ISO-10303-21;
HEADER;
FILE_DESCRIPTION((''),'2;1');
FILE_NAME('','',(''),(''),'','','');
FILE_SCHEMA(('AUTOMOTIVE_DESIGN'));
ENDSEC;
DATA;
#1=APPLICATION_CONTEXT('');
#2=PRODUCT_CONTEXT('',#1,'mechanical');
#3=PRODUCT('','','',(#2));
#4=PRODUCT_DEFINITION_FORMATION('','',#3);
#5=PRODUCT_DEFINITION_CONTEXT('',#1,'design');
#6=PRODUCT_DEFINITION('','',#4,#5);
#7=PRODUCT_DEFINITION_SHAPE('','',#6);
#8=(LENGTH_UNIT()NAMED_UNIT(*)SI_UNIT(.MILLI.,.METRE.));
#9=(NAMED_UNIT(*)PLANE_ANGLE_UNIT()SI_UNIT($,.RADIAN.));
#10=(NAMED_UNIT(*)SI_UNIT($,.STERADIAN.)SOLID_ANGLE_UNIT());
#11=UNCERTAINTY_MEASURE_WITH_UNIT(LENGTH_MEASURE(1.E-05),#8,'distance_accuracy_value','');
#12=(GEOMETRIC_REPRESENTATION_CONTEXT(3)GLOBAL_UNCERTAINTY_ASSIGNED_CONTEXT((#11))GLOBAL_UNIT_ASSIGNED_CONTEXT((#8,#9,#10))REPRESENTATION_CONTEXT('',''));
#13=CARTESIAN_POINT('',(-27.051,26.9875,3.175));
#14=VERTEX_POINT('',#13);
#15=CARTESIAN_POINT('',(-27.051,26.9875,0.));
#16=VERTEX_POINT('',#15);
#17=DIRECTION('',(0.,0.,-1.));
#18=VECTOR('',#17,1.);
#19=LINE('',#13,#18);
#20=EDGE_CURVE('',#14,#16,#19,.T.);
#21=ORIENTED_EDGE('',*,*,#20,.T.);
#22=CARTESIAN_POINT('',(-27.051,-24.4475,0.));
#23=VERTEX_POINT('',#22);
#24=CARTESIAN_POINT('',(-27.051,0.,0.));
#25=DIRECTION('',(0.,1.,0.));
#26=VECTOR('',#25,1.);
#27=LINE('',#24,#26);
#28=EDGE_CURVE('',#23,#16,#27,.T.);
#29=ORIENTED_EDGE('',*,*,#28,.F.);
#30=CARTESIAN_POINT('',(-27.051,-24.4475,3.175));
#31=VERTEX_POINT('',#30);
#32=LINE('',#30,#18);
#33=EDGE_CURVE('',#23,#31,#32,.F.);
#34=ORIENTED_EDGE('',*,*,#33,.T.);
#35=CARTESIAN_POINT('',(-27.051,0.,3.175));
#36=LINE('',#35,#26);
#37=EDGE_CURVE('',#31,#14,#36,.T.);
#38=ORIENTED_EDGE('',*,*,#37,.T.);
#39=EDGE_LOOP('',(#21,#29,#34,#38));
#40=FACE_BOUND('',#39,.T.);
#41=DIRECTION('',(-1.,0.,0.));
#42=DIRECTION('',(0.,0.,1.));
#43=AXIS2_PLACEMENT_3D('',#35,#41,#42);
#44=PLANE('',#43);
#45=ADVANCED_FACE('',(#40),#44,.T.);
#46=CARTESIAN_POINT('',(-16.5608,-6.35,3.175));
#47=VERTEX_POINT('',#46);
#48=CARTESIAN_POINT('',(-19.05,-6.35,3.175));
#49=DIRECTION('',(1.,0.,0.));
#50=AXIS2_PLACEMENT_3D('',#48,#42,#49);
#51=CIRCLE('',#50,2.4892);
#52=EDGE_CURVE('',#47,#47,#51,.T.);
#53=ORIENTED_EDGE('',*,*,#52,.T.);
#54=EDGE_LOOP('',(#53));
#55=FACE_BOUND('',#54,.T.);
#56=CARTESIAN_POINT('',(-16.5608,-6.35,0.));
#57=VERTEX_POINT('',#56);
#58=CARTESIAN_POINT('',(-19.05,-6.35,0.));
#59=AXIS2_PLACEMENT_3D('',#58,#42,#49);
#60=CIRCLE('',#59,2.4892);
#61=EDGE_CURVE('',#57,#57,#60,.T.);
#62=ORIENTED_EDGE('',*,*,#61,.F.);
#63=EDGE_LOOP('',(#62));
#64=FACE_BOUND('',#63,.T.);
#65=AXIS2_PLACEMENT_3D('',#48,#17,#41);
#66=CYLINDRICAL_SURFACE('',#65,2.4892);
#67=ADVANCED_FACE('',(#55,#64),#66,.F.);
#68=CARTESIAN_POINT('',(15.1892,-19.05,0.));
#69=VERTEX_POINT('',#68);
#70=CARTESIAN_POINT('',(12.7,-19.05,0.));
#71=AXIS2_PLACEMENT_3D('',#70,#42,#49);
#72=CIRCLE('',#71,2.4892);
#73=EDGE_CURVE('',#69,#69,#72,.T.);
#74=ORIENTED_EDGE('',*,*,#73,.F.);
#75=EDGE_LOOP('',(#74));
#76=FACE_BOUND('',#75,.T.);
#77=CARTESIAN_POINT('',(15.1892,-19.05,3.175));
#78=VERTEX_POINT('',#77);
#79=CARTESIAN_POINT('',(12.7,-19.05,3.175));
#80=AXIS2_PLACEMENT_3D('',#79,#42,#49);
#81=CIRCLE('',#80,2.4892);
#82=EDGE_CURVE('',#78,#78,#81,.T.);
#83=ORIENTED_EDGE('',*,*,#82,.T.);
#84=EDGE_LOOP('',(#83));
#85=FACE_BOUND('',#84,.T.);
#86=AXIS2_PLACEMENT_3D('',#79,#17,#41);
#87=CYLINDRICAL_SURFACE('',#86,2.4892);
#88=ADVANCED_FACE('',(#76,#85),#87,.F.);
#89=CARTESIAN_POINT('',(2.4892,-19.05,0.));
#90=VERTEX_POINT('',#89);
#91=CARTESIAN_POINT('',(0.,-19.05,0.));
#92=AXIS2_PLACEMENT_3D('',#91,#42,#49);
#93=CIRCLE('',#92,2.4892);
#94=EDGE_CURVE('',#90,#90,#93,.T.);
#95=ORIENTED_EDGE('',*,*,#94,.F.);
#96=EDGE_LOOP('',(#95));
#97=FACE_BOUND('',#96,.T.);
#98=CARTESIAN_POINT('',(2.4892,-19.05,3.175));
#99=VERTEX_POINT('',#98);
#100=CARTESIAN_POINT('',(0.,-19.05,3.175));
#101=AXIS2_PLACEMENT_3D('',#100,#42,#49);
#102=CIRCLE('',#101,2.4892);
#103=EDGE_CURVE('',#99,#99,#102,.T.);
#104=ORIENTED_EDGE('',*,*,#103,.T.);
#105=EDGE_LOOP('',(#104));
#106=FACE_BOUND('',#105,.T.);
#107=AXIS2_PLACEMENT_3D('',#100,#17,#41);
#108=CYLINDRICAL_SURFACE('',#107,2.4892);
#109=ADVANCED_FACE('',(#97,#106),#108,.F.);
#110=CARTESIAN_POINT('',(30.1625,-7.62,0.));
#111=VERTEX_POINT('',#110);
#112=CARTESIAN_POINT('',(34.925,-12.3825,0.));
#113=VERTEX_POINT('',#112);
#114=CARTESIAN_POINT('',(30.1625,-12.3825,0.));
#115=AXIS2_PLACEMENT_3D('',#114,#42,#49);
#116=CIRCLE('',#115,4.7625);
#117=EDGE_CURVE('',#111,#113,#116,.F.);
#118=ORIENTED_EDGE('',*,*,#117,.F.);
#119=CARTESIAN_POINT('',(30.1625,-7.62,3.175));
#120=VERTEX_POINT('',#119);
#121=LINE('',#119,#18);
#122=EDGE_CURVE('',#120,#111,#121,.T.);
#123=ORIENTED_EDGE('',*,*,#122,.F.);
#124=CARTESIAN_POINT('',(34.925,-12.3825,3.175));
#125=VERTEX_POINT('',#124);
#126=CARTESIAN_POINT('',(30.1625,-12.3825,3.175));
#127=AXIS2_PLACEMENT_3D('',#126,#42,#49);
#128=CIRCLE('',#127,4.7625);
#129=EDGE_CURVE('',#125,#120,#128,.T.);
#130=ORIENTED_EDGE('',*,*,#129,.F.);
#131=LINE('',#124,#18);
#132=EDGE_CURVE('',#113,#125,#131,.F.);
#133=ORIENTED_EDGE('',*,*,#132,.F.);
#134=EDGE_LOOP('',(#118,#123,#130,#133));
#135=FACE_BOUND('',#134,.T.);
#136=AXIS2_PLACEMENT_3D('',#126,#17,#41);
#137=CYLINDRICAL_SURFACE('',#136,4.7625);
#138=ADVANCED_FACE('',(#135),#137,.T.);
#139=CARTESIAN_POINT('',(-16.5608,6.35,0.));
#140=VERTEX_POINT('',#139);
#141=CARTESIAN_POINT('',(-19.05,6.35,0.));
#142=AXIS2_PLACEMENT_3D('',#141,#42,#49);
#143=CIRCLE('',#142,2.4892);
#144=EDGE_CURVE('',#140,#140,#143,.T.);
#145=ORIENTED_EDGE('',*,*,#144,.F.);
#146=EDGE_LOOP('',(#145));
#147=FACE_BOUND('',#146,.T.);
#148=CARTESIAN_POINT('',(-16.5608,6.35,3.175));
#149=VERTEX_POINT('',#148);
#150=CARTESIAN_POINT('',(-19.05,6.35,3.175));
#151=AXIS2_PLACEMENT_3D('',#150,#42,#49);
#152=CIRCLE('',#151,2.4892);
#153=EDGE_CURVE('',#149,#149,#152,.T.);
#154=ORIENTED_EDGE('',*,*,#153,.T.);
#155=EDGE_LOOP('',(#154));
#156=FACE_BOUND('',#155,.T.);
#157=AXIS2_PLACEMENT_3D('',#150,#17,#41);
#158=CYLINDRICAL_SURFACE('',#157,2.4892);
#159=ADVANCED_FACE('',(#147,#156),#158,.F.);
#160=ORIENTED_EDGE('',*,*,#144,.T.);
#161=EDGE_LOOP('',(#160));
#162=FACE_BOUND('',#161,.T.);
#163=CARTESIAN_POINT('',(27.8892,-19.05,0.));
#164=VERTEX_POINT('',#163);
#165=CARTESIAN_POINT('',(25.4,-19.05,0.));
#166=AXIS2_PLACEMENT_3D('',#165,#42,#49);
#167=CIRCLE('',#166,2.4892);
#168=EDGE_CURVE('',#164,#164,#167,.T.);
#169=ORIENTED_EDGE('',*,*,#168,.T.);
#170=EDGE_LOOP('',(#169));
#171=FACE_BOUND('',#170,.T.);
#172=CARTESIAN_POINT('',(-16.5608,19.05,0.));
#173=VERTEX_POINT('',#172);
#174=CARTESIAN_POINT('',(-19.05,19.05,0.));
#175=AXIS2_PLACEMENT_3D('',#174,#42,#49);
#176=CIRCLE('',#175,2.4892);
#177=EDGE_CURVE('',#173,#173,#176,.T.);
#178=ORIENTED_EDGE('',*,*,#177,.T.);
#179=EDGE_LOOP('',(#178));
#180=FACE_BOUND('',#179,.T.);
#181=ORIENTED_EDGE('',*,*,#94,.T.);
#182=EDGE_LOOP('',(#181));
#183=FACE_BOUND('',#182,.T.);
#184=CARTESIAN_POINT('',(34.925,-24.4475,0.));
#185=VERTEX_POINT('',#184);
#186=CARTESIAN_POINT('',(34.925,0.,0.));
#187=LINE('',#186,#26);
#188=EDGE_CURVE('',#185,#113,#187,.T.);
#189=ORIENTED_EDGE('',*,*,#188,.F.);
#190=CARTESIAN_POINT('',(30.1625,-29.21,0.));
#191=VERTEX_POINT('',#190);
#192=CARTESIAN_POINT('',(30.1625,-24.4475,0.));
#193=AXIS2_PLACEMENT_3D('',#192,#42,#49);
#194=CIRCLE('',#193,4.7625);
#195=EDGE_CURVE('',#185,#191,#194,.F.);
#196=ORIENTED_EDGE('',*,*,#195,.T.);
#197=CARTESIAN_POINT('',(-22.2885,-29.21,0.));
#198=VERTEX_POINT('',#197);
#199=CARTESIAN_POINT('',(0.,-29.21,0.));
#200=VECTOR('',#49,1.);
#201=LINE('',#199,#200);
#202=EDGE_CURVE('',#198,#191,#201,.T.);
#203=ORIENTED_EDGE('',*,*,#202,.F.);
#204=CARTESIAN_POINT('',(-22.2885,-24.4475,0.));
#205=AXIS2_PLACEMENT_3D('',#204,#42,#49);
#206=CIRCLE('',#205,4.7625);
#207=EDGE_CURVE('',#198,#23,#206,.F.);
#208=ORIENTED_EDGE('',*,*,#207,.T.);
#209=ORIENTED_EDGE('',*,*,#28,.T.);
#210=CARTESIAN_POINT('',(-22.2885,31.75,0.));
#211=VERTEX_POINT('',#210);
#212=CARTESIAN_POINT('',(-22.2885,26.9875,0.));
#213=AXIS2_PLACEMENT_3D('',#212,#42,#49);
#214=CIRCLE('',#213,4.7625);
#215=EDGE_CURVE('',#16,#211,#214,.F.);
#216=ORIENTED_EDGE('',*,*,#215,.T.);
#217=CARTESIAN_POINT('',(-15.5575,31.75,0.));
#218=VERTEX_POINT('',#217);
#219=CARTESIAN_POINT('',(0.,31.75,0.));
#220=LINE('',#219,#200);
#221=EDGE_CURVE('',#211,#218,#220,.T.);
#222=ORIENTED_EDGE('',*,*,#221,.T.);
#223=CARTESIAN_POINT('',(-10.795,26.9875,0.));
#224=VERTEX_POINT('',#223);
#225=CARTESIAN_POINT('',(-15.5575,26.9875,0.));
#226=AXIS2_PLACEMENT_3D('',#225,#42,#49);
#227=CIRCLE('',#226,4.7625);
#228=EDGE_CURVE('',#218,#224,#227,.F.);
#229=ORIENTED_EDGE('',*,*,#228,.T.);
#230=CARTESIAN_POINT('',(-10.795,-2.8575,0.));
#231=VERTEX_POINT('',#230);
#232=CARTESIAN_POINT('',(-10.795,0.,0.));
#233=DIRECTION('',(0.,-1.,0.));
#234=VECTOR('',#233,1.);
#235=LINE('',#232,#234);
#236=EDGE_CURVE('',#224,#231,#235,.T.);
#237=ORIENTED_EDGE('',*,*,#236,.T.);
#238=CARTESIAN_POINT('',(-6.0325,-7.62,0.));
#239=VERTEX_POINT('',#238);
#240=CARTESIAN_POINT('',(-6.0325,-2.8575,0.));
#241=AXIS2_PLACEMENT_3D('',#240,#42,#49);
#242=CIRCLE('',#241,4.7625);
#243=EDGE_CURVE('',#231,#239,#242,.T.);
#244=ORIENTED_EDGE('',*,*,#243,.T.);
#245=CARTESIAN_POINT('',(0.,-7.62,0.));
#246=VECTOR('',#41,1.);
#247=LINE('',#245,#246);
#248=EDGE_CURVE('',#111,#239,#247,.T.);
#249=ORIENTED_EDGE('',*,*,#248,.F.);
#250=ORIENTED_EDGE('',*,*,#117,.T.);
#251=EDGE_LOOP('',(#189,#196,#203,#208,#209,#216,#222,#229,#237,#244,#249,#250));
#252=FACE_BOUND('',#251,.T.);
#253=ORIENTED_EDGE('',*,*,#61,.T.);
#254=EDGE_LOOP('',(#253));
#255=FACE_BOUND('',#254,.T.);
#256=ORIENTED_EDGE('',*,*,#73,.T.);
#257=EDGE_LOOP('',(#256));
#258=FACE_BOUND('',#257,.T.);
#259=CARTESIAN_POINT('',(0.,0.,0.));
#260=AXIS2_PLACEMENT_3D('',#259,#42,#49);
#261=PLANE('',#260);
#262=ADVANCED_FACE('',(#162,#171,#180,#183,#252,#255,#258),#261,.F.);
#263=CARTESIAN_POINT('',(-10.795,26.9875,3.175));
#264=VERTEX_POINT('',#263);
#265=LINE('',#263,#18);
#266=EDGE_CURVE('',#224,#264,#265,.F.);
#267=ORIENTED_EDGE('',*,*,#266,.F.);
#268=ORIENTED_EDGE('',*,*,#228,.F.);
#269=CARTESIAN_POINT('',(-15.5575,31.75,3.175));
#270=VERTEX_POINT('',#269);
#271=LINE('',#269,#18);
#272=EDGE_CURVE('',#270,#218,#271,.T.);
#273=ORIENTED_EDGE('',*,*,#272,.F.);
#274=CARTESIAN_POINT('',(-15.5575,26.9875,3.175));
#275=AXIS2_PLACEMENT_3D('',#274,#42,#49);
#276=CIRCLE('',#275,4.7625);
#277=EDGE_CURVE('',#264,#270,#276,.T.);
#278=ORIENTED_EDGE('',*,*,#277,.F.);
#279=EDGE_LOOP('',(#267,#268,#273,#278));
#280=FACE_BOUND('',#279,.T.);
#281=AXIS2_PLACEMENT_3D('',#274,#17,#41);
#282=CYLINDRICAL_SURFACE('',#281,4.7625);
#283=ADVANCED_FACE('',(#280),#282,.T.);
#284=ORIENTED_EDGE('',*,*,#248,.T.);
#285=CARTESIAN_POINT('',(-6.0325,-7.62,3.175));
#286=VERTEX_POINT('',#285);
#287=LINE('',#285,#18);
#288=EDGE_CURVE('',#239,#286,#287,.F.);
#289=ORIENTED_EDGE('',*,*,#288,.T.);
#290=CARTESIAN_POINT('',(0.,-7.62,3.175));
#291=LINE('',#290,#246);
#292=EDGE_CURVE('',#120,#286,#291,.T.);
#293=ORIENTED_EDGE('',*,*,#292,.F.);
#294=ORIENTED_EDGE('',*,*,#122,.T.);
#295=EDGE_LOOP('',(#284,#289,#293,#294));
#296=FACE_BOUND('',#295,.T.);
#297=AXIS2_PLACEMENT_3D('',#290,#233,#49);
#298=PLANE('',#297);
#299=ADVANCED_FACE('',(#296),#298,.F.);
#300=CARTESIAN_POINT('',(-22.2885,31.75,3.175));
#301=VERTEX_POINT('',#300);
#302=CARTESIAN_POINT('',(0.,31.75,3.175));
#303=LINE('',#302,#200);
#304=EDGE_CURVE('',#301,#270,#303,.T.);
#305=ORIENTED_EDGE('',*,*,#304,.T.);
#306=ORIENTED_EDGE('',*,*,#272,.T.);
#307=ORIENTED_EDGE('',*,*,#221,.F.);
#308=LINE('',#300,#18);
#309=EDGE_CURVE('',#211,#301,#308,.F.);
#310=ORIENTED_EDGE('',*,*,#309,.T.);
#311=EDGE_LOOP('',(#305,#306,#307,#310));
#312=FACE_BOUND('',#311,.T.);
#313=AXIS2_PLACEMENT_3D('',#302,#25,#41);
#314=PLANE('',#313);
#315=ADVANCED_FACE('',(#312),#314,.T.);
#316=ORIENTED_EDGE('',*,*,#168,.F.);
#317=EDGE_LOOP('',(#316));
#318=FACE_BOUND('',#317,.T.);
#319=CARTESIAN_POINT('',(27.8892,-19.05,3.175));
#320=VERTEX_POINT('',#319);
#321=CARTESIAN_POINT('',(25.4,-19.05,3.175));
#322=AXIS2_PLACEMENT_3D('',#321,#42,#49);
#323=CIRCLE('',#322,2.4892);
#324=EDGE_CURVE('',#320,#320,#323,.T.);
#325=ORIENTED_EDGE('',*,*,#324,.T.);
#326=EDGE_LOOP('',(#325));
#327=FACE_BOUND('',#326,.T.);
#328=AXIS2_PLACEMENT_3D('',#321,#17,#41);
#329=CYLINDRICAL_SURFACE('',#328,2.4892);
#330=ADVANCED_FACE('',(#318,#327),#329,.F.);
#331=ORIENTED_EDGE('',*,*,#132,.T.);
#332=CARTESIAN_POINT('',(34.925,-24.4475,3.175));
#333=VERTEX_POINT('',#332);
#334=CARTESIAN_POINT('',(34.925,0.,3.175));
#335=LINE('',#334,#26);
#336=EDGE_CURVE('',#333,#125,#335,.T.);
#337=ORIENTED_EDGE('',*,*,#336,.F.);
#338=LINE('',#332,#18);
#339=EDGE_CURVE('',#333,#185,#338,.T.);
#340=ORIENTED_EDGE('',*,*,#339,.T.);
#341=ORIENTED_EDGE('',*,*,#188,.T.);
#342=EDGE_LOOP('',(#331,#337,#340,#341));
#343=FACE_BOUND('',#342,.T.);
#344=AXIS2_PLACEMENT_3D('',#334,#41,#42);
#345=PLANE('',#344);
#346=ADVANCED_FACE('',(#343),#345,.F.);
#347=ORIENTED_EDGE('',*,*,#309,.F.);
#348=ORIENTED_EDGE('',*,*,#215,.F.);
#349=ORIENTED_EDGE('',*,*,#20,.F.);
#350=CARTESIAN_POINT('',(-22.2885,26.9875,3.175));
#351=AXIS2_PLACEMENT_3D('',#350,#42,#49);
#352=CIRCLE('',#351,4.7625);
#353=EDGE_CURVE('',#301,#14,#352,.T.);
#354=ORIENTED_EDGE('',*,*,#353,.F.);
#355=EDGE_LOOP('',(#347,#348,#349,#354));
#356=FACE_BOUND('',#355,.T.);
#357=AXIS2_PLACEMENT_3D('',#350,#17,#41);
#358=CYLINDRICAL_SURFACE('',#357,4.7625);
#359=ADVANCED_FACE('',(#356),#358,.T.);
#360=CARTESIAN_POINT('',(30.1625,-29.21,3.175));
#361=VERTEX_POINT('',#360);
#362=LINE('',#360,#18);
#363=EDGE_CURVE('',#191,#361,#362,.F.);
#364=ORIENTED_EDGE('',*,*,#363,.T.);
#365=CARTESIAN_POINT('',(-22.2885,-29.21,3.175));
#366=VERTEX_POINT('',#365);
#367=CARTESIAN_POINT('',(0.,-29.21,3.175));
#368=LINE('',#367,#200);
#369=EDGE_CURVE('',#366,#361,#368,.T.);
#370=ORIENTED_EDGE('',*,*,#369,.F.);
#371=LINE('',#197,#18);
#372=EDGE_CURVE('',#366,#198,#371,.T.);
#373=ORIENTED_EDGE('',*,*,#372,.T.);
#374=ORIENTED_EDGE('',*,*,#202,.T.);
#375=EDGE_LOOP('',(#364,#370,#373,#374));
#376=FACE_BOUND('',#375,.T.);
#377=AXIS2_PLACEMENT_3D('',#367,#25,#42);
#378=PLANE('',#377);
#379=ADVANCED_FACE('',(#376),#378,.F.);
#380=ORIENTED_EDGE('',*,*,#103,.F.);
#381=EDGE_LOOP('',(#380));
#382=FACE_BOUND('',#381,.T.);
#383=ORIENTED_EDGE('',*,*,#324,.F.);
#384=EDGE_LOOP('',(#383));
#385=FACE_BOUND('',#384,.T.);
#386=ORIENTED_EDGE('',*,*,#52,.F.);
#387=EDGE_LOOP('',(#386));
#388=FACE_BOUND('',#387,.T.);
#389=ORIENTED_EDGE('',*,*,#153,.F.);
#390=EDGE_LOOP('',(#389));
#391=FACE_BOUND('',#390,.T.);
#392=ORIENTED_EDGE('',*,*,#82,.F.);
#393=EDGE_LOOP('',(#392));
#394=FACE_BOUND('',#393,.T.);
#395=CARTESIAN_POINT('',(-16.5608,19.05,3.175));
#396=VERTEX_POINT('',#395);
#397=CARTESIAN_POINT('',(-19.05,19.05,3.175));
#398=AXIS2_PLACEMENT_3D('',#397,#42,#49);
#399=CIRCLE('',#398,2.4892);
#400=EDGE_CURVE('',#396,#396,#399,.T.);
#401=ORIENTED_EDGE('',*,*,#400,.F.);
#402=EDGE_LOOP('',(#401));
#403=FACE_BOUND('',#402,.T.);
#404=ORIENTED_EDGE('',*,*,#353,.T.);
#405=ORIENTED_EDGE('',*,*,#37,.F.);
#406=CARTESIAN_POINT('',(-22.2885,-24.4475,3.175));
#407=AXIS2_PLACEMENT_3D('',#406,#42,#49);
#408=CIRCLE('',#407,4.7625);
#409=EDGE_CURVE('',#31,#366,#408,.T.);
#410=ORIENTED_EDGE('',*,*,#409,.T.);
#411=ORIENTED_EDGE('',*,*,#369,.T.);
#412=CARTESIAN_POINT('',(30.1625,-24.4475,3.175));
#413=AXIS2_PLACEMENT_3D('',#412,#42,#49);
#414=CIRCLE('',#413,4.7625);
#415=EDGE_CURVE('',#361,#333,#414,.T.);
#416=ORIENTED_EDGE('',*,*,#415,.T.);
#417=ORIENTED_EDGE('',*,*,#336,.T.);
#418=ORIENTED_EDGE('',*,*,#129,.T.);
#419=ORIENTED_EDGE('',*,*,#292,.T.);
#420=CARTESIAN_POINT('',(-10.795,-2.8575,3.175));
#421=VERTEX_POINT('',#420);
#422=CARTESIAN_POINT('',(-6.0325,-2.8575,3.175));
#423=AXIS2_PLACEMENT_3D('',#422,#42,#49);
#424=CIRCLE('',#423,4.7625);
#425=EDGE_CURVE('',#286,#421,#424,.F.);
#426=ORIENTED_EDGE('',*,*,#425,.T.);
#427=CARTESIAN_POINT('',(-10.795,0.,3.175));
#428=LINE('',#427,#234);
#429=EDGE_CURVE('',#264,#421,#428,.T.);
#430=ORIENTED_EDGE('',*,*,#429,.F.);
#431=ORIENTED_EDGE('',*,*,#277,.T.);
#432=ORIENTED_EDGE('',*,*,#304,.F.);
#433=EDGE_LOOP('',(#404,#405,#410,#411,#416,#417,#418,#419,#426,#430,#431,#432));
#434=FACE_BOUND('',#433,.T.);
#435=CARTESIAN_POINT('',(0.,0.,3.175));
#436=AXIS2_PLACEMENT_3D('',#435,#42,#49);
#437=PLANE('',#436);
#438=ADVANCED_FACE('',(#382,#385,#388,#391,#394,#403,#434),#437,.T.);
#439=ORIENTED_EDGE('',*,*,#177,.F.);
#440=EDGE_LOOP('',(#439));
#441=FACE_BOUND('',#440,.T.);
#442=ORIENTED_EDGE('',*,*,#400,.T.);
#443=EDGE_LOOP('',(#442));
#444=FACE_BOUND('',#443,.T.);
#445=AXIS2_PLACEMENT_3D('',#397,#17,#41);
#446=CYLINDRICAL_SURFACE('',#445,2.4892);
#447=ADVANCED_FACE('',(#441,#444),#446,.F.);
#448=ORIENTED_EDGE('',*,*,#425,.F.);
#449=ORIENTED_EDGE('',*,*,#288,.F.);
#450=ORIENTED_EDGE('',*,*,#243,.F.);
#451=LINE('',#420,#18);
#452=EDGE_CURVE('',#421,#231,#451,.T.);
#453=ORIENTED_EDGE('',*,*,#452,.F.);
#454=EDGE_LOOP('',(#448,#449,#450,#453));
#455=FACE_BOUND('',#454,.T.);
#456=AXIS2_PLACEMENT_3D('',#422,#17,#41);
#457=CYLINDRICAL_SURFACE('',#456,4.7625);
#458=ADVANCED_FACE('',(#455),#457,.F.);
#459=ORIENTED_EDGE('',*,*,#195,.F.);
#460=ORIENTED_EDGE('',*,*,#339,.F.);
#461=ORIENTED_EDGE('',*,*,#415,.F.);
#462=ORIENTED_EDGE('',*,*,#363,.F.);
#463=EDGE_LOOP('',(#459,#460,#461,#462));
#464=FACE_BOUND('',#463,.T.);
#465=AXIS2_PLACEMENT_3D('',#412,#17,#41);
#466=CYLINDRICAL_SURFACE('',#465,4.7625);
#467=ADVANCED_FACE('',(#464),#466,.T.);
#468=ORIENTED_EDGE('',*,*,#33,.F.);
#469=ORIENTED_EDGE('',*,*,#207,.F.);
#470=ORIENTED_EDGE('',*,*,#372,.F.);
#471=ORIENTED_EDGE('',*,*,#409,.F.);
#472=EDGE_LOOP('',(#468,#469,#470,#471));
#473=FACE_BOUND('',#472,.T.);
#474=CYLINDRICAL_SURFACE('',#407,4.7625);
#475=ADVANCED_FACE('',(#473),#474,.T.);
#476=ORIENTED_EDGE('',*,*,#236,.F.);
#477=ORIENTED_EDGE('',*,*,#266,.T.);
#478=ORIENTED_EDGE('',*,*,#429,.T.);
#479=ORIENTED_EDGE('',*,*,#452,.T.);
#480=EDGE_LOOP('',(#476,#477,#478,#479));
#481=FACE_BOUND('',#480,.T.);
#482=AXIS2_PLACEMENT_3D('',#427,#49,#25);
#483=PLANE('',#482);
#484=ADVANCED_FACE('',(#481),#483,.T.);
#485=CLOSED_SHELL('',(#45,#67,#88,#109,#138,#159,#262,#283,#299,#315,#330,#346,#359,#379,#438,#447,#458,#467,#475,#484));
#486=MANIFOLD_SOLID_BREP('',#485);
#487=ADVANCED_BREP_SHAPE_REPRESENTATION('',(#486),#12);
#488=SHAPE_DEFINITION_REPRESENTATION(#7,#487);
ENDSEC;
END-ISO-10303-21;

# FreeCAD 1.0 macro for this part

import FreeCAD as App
import Part
import Sketcher
Q = App.Units.Quantity


def edges_at(feature, points):
    """Names of the edges that pass closest to the given points."""
    edges = feature.Shape.Edges
    near = lambda p: min(range(len(edges)), key=lambda i: edges[i].distToShape(Part.Vertex(*p))[0])
    return sorted({f"Edge{near(p) + 1}" for p in points})


def add_polygon(sketch, points):
    """Adds a closed chain of lines whose ends are joined by coincident constraints."""
    first, n = sketch.GeometryCount, len(points)
    for a, b in zip(points, points[1:] + points[:1]):
        sketch.addGeometry(Part.LineSegment(App.Vector(*a, 0), App.Vector(*b, 0)), False)
    for i in range(n):
        sketch.addConstraint(Sketcher.Constraint("Coincident", first + i, 2, first + (i + 1) % n, 1))

doc = App.newDocument("Part")
body = doc.addObject("PartDesign::Body", "Body")

# Sketch on XY plane
sketch1 = body.newObject("Sketcher::SketchObject", "Sketch")
sketch1.AttachmentSupport = (doc.getObject("XY_Plane"), [""])
sketch1.MapMode = "FlatFace"
add_polygon(sketch1, [(-27.051, 31.75), (-27.051, -29.21), (34.925, -29.21), (34.925, -7.62), (-10.795, -7.62), (-10.795, 31.75)])  # lines 0-5
sketch1.addGeometry(Part.Circle(App.Vector(0, -19.05, 0), App.Vector(0, 0, 1), 2.4892), False)  # 6
sketch1.addGeometry(Part.Circle(App.Vector(-19.05, -6.35, 0), App.Vector(0, 0, 1), 2.4892), False)  # 7
sketch1.addGeometry(Part.Circle(App.Vector(12.7, -19.05, 0), App.Vector(0, 0, 1), 2.4892), False)  # 8
sketch1.addGeometry(Part.Circle(App.Vector(25.4, -19.05, 0), App.Vector(0, 0, 1), 2.4892), False)  # 9
sketch1.addGeometry(Part.Circle(App.Vector(-19.05, 6.35, 0), App.Vector(0, 0, 1), 2.4892), False)  # 10
sketch1.addGeometry(Part.Circle(App.Vector(-19.05, 19.05, 0), App.Vector(0, 0, 1), 2.4892), False)  # 11
sketch1.addConstraint([
    Sketcher.Constraint("Vertical", 0),
    Sketcher.Constraint("Horizontal", 1),
    Sketcher.Constraint("Vertical", 2),
    Sketcher.Constraint("Horizontal", 3),
    Sketcher.Constraint("Vertical", 4),
    Sketcher.Constraint("Horizontal", 5),
    Sketcher.Constraint("Equal", 6, 7),
    Sketcher.Constraint("Equal", 7, 8),
    Sketcher.Constraint("Equal", 8, 9),
    Sketcher.Constraint("Equal", 9, 10),
    Sketcher.Constraint("Equal", 10, 11),
    Sketcher.Constraint("Symmetric", 7, 3, 10, 3, -1),
    Sketcher.Constraint("PointOnObject", 6, 3, -2),
    Sketcher.Constraint("Horizontal", 6, 3, 8, 3),
    Sketcher.Constraint("Horizontal", 8, 3, 9, 3),
    Sketcher.Constraint("Vertical", 10, 3, 11, 3),
    Sketcher.Constraint("Diameter", 6, Q("0.196 in")),
    Sketcher.Constraint("DistanceX", 3, 2, 3, 1, Q("1.8 in")),
    Sketcher.Constraint("DistanceY", 0, 2, 0, 1, Q("2.4 in")),
    Sketcher.Constraint("DistanceX", -1, 1, 9, 3, Q("1 in")),
    Sketcher.Constraint("DistanceY", 6, 3, 10, 3, Q("1 in")),
    Sketcher.Constraint("DistanceY", 7, 3, 11, 3, Q("1 in")),
    Sketcher.Constraint("DistanceY", 10, 3, 4, 2, Q("1 in")),
    Sketcher.Constraint("DistanceX", 1, 1, 1, 2, Q("2.44 in")),
    Sketcher.Constraint("DistanceY", 2, 1, 2, 2, Q("0.85 in")),
    Sketcher.Constraint("DistanceX", -1, 1, 8, 3, Q("0.5 in")),
    Sketcher.Constraint("DistanceY", 2, 2, -1, 1, Q("0.3 in")),
    Sketcher.Constraint("DistanceX", 7, 3, -1, 1, Q("0.75 in")),
    Sketcher.Constraint("DistanceX", 0, 2, -1, 1, Q("1.065 in")),
])
pad1 = body.newObject("PartDesign::Pad", "Pad")
pad1.Profile = sketch1
pad1.Length = Q("0.125 in")
doc.recompute()

fillet = body.newObject("PartDesign::Fillet", "Fillet")
fillet.Base = (pad1, edges_at(pad1, [
    (-27.051, 31.75, 1.587),
    (-10.795, 31.75, 1.587),
    (-10.795, -7.62, 1.587),
    (34.925, -7.62, 1.587),
    (34.925, -29.21, 1.587),
    (-27.051, -29.21, 1.587),
]))
fillet.Radius = Q("0.1875 in")

doc.recompute()
